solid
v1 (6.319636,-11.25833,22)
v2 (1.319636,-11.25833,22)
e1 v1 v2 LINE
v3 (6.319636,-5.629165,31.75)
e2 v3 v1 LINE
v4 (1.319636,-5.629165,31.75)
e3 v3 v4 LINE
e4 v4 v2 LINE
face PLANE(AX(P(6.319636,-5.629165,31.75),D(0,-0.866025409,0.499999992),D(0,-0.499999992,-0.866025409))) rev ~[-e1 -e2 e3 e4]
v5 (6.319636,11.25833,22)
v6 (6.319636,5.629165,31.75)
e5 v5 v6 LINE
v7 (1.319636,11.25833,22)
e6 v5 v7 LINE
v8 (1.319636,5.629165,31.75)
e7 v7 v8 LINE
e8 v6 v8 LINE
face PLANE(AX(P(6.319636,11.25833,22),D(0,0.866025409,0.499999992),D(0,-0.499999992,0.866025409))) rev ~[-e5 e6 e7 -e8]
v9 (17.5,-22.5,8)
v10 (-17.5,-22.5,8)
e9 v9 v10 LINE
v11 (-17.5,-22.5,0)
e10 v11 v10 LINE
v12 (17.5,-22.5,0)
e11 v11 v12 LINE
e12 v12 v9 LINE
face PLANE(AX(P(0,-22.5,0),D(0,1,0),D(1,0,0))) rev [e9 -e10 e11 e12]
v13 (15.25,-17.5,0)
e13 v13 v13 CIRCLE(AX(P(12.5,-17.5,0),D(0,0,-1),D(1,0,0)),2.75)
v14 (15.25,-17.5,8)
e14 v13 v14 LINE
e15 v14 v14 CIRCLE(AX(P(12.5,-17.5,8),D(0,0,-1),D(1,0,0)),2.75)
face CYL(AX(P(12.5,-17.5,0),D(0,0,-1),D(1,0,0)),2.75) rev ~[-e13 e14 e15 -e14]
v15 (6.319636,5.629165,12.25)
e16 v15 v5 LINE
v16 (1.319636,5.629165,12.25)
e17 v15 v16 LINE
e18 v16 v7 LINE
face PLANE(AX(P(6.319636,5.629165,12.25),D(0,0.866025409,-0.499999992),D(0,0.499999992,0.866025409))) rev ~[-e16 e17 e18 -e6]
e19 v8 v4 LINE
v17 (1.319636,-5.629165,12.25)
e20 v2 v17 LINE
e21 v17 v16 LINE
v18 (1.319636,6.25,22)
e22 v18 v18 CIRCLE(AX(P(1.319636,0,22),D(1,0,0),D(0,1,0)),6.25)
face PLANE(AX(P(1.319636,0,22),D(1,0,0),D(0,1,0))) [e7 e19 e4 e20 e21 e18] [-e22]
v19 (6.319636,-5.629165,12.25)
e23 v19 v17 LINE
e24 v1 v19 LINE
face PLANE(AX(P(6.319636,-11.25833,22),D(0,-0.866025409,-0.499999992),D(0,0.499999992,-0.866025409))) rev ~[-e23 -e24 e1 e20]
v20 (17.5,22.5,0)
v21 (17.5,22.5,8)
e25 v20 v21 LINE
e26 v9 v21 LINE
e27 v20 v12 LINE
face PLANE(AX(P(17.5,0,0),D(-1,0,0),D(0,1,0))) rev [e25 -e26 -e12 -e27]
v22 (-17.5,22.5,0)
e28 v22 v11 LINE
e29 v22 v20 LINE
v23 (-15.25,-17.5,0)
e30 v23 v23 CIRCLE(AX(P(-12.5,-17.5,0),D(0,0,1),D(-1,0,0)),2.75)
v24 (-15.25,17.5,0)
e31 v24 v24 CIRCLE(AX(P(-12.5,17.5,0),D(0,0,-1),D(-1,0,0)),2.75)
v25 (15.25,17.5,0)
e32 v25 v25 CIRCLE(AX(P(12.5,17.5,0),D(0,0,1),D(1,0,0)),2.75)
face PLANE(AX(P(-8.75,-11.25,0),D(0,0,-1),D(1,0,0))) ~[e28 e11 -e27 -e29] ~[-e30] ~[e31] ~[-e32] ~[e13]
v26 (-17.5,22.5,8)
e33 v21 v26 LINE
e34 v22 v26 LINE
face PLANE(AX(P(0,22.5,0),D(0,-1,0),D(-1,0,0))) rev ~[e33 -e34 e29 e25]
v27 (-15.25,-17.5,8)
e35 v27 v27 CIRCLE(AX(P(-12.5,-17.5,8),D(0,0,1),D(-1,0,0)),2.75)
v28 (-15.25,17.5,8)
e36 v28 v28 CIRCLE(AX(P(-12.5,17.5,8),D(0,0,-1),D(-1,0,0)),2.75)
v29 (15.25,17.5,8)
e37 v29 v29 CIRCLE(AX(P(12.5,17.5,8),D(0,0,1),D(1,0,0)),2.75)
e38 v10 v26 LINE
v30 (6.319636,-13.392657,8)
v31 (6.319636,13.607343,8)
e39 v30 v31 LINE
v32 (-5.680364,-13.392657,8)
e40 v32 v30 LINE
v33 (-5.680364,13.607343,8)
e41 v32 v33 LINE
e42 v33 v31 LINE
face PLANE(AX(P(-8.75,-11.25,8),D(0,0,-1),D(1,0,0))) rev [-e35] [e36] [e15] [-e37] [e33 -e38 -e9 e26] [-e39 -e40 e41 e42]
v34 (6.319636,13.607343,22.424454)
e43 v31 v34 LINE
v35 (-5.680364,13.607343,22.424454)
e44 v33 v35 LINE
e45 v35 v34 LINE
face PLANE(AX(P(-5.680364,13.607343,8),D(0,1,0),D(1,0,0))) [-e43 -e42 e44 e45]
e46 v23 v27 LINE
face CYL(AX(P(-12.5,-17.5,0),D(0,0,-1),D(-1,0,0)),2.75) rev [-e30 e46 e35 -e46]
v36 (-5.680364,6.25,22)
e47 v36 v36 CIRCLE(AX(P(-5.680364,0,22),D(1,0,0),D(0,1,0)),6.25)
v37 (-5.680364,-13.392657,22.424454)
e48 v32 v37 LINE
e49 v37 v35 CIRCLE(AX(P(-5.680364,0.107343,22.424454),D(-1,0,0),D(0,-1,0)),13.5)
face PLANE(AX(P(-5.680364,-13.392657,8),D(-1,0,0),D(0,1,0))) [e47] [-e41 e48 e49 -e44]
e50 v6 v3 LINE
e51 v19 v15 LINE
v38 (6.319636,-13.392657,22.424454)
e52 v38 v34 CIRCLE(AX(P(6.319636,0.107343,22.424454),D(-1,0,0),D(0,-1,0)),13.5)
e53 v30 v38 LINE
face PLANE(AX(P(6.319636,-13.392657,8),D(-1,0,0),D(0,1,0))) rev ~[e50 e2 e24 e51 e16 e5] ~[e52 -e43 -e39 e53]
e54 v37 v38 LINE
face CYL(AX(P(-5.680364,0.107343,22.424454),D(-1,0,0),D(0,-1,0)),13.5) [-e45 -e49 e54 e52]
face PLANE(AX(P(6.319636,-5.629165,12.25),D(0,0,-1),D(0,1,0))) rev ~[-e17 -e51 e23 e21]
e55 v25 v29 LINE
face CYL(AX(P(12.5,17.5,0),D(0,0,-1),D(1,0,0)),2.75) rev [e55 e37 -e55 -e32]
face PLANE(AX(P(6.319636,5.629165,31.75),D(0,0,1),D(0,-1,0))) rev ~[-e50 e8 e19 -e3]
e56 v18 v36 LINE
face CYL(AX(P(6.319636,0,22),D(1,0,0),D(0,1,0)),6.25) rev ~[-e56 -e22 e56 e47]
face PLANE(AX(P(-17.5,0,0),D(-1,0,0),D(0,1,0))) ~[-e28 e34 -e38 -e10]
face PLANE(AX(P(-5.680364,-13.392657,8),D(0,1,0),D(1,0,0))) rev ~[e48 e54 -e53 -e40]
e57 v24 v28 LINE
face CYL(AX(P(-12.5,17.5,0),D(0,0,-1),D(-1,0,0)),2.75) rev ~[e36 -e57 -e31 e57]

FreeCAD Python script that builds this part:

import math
import FreeCAD as App
import Part
import Sketcher
Q = App.Units.Quantity

doc = App.newDocument("Part")
body = doc.addObject("PartDesign::Body", "Body")

sketch1 = body.newObject("Sketcher::SketchObject", "Sketch")
sketch1.AttachmentSupport = (doc.getObject("XY_Plane"), [""])
sketch1.MapMode = "FlatFace"
sketch1.addGeometry([
    Part.LineSegment(App.Vector(0, 22.5, 0), App.Vector(0, 0, 0)),
    Part.LineSegment(App.Vector(0, 0, 0), App.Vector(17.5, 0, 0)),
    Part.LineSegment(App.Vector(17.5, 0, 0), App.Vector(17.5, 22.5, 0)),
    Part.LineSegment(App.Vector(17.5, 22.5, 0), App.Vector(0, 22.5, 0)),
    Part.Circle(App.Vector(12.5, 17.5, 0), App.Vector(0, 0, 1), 2.8),
], False)
sketch1.addConstraint([
    Sketcher.Constraint("Coincident", 0, 2, 1, 1),
    Sketcher.Constraint("Coincident", 1, 2, 2, 1),
    Sketcher.Constraint("Coincident", 2, 2, 3, 1),
    Sketcher.Constraint("Coincident", 3, 2, 0, 1),
    Sketcher.Constraint("Vertical", 0),
    Sketcher.Constraint("Horizontal", 1),
    Sketcher.Constraint("Vertical", 2),
    Sketcher.Constraint("Horizontal", 3),
    Sketcher.Constraint("Coincident", 0, 2, -1, 1),
    Sketcher.Constraint("Diameter", 4, Q("5.5 mm")),
    Sketcher.Constraint("DistanceX", 1, 1, 1, 2, Q("17.5 mm")),
    Sketcher.Constraint("DistanceY", 0, 2, 0, 1, Q("22.5 mm")),
    Sketcher.Constraint("DistanceX", 4, 3, 1, 2, Q("5 mm")),
    Sketcher.Constraint("DistanceY", 4, 3, 2, 2, Q("5 mm")),
])
pad1 = body.newObject("PartDesign::Pad", "Pad")
pad1.Profile = sketch1
pad1.Length = 8

sketch2 = body.newObject("Sketcher::SketchObject", "Sketch001")
sketch2.AttachmentSupport = (doc.getObject("XY_Plane"), [""])
sketch2.MapMode = "FlatFace"
sketch2.addGeometry([
    Part.LineSegment(App.Vector(0, 22.5, 0), App.Vector(0, 0, 0)),
    Part.LineSegment(App.Vector(0, 0, 0), App.Vector(-17.5, 0, 0)),
    Part.LineSegment(App.Vector(-17.5, 0, 0), App.Vector(-17.5, 22.5, 0)),
    Part.LineSegment(App.Vector(-17.5, 22.5, 0), App.Vector(0, 22.5, 0)),
    Part.Circle(App.Vector(-12.5, 17.5, 0), App.Vector(0, 0, 1), 2.8),
], False)
sketch2.addConstraint([
    Sketcher.Constraint("Coincident", 0, 2, 1, 1),
    Sketcher.Constraint("Coincident", 1, 2, 2, 1),
    Sketcher.Constraint("Coincident", 2, 2, 3, 1),
    Sketcher.Constraint("Coincident", 3, 2, 0, 1),
    Sketcher.Constraint("Vertical", 0),
    Sketcher.Constraint("Horizontal", 1),
    Sketcher.Constraint("Vertical", 2),
    Sketcher.Constraint("Horizontal", 3),
    Sketcher.Constraint("Coincident", 0, 2, -1, 1),
    Sketcher.Constraint("Diameter", 4, Q("5.5 mm")),
    Sketcher.Constraint("DistanceX", 1, 2, 1, 1, Q("17.5 mm")),
    Sketcher.Constraint("DistanceY", 0, 2, 0, 1, Q("22.5 mm")),
    Sketcher.Constraint("DistanceX", 1, 2, 4, 3, Q("5 mm")),
    Sketcher.Constraint("DistanceY", 4, 3, 2, 2, Q("5 mm")),
])
pad2 = body.newObject("PartDesign::Pad", "Pad001")
pad2.Profile = sketch2
pad2.Length = 8
doc.recompute()

mirrored = body.newObject("PartDesign::Mirrored", "Mirrored")
mirrored.Originals = [pad1, pad2]
mirrored.MirrorPlane = (doc.getObject("XZ_Plane"), [""])
body.Tip = mirrored

sketch3 = body.newObject("Sketcher::SketchObject", "Sketch002")
sketch3.AttachmentSupport = (doc.getObject("XY_Plane"), [""])
sketch3.MapMode = "FlatFace"
sketch3.AttachmentOffset = App.Placement(App.Vector(0, 0, 8), App.Rotation())
sketch3.addGeometry([
    Part.LineSegment(App.Vector(-6, 14, 0), App.Vector(-6, -13, 0)),
    Part.LineSegment(App.Vector(-6, -13, 0), App.Vector(6, -13, 0)),
    Part.LineSegment(App.Vector(6, -13, 0), App.Vector(6, 14, 0)),
    Part.LineSegment(App.Vector(6, 14, 0), App.Vector(-6, 14, 0)),
], False)
sketch3.addConstraint([
    Sketcher.Constraint("Coincident", 0, 2, 1, 1),
    Sketcher.Constraint("Coincident", 1, 2, 2, 1),
    Sketcher.Constraint("Coincident", 2, 2, 3, 1),
    Sketcher.Constraint("Coincident", 3, 2, 0, 1),
    Sketcher.Constraint("Vertical", 0),
    Sketcher.Constraint("Horizontal", 1),
    Sketcher.Constraint("Vertical", 2),
    Sketcher.Constraint("Horizontal", 3),
    Sketcher.Constraint("DistanceX", 1, 1, 1, 2, Q("12 mm")),
    Sketcher.Constraint("DistanceY", 0, 2, 0, 1, Q("27 mm")),
    Sketcher.Constraint("DistanceX", 0, 2, -1, 1, Q("5.680364 mm")),
    Sketcher.Constraint("DistanceY", 0, 2, -1, 1, Q("13.392657 mm")),
])
pad3 = body.newObject("PartDesign::Pad", "Pad002")
pad3.Profile = sketch3
pad3.Length = 28

sketch4 = body.newObject("Sketcher::SketchObject", "Sketch003")
sketch4.AttachmentSupport = (doc.getObject("YZ_Plane"), [""])
sketch4.MapMode = "FlatFace"
sketch4.AttachmentOffset = App.Placement(App.Vector(0, 0, -5.680364), App.Rotation())
sketch4.addGeometry([
    Part.ArcOfCircle(Part.Circle(App.Vector(0, 22, 0), App.Vector(0, 0, 1), 14), math.radians(0), math.radians(180)),
    Part.LineSegment(App.Vector(-13, 22, 0), App.Vector(-15, 49, 0)),
    Part.LineSegment(App.Vector(-15, 49, 0), App.Vector(14, 49, 0)),
    Part.LineSegment(App.Vector(14, 49, 0), App.Vector(14, 22, 0)),
], False)
sketch4.addConstraint([
    Sketcher.Constraint("Coincident", 0, 2, 1, 1),
    Sketcher.Constraint("Coincident", 1, 2, 2, 1),
    Sketcher.Constraint("Coincident", 2, 2, 3, 1),
    Sketcher.Constraint("Coincident", 3, 2, 0, 1),
    Sketcher.Constraint("Horizontal", 2),
    Sketcher.Constraint("Horizontal", 0, 2, 3, 2),
    Sketcher.Constraint("Radius", 0, Q("13.5 mm")),
    Sketcher.Constraint("DistanceX", 2, 1, 2, 2, Q("28.274471 mm")),
    Sketcher.Constraint("Distance", 3, Q("26.705189 mm")),
    Sketcher.Constraint("DistanceX", 1, 2, -1, 1, Q("14.64682 mm")),
    Sketcher.Constraint("DistanceY", 0, 3, 1, 2, Q("26.705181 mm")),
    Sketcher.Constraint("DistanceX", 0, 2, 2, 2, Q("27.020308 mm")),
    Sketcher.Constraint("DistanceY", -1, 1, 0, 3, Q("22.424454 mm")),
])
pocket1 = body.newObject("PartDesign::Pocket", "Pocket")
pocket1.Profile = sketch4
pocket1.Length = 56
pocket1.Reversed = True

sketch5 = body.newObject("Sketcher::SketchObject", "Sketch004")
sketch5.AttachmentSupport = (doc.getObject("YZ_Plane"), [""])
sketch5.MapMode = "FlatFace"
sketch5.AttachmentOffset = App.Placement(App.Vector(0, 0, 6.319636), App.Rotation())
sketch5.addGeometry(Part.Circle(App.Vector(0, 22, 0), App.Vector(0, 0, 1), 6), False)
sketch5.addConstraint([
    Sketcher.Constraint("PointOnObject", 0, 3, -2),
    Sketcher.Constraint("Diameter", 0, Q("12.5 mm")),
    Sketcher.Constraint("DistanceY", -1, 1, 0, 3, Q("22 mm")),
])
pocket2 = body.newObject("PartDesign::Pocket", "Pocket001")
pocket2.Profile = sketch5
pocket2.Type = "ThroughAll"
pocket2.Midplane = True

sketch6 = body.newObject("Sketcher::SketchObject", "Sketch005")
sketch6.AttachmentSupport = (doc.getObject("YZ_Plane"), [""])
sketch6.MapMode = "FlatFace"
sketch6.AttachmentOffset = App.Placement(App.Vector(0, 0, 6.319636), App.Rotation())
sketch6.addGeometry([
    Part.LineSegment(App.Vector(6, 12, 0), App.Vector(11, 22, 0)),
    Part.LineSegment(App.Vector(11, 22, 0), App.Vector(6, 32, 0)),
    Part.LineSegment(App.Vector(6, 32, 0), App.Vector(-6, 32, 0)),
    Part.LineSegment(App.Vector(-6, 32, 0), App.Vector(-11, 22, 0)),
    Part.LineSegment(App.Vector(-11, 22, 0), App.Vector(-6, 12, 0)),
    Part.LineSegment(App.Vector(-6, 12, 0), App.Vector(6, 12, 0)),
], False)
sketch6.addConstraint([
    Sketcher.Constraint("Coincident", 0, 2, 1, 1),
    Sketcher.Constraint("Coincident", 1, 2, 2, 1),
    Sketcher.Constraint("Coincident", 2, 2, 3, 1),
    Sketcher.Constraint("Coincident", 3, 2, 4, 1),
    Sketcher.Constraint("Coincident", 4, 2, 5, 1),
    Sketcher.Constraint("Coincident", 5, 2, 0, 1),
    Sketcher.Constraint("Horizontal", 2),
    Sketcher.Constraint("Horizontal", 5),
    Sketcher.Constraint("Symmetric", 0, 2, 3, 2, -2),
    Sketcher.Constraint("Parallel", 0, 3),
    Sketcher.Constraint("Parallel", 1, 4),
    Sketcher.Constraint("Vertical", 2, 2, 4, 2),
    Sketcher.Constraint("Vertical", 1, 2, 5, 2),
    Sketcher.Constraint("Angle", 0, Q("60.000001 deg")),
    Sketcher.Constraint("DistanceY", -1, 1, 0, 2, Q("22 mm")),
    Sketcher.Constraint("DistanceY", 4, 2, 2, 2, Q("19.5 mm")),
    Sketcher.Constraint("DistanceX", 2, 2, 2, 1, Q("11.25833 mm")),
])
pocket3 = body.newObject("PartDesign::Pocket", "Pocket002")
pocket3.Profile = sketch6
pocket3.Length = 5

doc.recompute()
